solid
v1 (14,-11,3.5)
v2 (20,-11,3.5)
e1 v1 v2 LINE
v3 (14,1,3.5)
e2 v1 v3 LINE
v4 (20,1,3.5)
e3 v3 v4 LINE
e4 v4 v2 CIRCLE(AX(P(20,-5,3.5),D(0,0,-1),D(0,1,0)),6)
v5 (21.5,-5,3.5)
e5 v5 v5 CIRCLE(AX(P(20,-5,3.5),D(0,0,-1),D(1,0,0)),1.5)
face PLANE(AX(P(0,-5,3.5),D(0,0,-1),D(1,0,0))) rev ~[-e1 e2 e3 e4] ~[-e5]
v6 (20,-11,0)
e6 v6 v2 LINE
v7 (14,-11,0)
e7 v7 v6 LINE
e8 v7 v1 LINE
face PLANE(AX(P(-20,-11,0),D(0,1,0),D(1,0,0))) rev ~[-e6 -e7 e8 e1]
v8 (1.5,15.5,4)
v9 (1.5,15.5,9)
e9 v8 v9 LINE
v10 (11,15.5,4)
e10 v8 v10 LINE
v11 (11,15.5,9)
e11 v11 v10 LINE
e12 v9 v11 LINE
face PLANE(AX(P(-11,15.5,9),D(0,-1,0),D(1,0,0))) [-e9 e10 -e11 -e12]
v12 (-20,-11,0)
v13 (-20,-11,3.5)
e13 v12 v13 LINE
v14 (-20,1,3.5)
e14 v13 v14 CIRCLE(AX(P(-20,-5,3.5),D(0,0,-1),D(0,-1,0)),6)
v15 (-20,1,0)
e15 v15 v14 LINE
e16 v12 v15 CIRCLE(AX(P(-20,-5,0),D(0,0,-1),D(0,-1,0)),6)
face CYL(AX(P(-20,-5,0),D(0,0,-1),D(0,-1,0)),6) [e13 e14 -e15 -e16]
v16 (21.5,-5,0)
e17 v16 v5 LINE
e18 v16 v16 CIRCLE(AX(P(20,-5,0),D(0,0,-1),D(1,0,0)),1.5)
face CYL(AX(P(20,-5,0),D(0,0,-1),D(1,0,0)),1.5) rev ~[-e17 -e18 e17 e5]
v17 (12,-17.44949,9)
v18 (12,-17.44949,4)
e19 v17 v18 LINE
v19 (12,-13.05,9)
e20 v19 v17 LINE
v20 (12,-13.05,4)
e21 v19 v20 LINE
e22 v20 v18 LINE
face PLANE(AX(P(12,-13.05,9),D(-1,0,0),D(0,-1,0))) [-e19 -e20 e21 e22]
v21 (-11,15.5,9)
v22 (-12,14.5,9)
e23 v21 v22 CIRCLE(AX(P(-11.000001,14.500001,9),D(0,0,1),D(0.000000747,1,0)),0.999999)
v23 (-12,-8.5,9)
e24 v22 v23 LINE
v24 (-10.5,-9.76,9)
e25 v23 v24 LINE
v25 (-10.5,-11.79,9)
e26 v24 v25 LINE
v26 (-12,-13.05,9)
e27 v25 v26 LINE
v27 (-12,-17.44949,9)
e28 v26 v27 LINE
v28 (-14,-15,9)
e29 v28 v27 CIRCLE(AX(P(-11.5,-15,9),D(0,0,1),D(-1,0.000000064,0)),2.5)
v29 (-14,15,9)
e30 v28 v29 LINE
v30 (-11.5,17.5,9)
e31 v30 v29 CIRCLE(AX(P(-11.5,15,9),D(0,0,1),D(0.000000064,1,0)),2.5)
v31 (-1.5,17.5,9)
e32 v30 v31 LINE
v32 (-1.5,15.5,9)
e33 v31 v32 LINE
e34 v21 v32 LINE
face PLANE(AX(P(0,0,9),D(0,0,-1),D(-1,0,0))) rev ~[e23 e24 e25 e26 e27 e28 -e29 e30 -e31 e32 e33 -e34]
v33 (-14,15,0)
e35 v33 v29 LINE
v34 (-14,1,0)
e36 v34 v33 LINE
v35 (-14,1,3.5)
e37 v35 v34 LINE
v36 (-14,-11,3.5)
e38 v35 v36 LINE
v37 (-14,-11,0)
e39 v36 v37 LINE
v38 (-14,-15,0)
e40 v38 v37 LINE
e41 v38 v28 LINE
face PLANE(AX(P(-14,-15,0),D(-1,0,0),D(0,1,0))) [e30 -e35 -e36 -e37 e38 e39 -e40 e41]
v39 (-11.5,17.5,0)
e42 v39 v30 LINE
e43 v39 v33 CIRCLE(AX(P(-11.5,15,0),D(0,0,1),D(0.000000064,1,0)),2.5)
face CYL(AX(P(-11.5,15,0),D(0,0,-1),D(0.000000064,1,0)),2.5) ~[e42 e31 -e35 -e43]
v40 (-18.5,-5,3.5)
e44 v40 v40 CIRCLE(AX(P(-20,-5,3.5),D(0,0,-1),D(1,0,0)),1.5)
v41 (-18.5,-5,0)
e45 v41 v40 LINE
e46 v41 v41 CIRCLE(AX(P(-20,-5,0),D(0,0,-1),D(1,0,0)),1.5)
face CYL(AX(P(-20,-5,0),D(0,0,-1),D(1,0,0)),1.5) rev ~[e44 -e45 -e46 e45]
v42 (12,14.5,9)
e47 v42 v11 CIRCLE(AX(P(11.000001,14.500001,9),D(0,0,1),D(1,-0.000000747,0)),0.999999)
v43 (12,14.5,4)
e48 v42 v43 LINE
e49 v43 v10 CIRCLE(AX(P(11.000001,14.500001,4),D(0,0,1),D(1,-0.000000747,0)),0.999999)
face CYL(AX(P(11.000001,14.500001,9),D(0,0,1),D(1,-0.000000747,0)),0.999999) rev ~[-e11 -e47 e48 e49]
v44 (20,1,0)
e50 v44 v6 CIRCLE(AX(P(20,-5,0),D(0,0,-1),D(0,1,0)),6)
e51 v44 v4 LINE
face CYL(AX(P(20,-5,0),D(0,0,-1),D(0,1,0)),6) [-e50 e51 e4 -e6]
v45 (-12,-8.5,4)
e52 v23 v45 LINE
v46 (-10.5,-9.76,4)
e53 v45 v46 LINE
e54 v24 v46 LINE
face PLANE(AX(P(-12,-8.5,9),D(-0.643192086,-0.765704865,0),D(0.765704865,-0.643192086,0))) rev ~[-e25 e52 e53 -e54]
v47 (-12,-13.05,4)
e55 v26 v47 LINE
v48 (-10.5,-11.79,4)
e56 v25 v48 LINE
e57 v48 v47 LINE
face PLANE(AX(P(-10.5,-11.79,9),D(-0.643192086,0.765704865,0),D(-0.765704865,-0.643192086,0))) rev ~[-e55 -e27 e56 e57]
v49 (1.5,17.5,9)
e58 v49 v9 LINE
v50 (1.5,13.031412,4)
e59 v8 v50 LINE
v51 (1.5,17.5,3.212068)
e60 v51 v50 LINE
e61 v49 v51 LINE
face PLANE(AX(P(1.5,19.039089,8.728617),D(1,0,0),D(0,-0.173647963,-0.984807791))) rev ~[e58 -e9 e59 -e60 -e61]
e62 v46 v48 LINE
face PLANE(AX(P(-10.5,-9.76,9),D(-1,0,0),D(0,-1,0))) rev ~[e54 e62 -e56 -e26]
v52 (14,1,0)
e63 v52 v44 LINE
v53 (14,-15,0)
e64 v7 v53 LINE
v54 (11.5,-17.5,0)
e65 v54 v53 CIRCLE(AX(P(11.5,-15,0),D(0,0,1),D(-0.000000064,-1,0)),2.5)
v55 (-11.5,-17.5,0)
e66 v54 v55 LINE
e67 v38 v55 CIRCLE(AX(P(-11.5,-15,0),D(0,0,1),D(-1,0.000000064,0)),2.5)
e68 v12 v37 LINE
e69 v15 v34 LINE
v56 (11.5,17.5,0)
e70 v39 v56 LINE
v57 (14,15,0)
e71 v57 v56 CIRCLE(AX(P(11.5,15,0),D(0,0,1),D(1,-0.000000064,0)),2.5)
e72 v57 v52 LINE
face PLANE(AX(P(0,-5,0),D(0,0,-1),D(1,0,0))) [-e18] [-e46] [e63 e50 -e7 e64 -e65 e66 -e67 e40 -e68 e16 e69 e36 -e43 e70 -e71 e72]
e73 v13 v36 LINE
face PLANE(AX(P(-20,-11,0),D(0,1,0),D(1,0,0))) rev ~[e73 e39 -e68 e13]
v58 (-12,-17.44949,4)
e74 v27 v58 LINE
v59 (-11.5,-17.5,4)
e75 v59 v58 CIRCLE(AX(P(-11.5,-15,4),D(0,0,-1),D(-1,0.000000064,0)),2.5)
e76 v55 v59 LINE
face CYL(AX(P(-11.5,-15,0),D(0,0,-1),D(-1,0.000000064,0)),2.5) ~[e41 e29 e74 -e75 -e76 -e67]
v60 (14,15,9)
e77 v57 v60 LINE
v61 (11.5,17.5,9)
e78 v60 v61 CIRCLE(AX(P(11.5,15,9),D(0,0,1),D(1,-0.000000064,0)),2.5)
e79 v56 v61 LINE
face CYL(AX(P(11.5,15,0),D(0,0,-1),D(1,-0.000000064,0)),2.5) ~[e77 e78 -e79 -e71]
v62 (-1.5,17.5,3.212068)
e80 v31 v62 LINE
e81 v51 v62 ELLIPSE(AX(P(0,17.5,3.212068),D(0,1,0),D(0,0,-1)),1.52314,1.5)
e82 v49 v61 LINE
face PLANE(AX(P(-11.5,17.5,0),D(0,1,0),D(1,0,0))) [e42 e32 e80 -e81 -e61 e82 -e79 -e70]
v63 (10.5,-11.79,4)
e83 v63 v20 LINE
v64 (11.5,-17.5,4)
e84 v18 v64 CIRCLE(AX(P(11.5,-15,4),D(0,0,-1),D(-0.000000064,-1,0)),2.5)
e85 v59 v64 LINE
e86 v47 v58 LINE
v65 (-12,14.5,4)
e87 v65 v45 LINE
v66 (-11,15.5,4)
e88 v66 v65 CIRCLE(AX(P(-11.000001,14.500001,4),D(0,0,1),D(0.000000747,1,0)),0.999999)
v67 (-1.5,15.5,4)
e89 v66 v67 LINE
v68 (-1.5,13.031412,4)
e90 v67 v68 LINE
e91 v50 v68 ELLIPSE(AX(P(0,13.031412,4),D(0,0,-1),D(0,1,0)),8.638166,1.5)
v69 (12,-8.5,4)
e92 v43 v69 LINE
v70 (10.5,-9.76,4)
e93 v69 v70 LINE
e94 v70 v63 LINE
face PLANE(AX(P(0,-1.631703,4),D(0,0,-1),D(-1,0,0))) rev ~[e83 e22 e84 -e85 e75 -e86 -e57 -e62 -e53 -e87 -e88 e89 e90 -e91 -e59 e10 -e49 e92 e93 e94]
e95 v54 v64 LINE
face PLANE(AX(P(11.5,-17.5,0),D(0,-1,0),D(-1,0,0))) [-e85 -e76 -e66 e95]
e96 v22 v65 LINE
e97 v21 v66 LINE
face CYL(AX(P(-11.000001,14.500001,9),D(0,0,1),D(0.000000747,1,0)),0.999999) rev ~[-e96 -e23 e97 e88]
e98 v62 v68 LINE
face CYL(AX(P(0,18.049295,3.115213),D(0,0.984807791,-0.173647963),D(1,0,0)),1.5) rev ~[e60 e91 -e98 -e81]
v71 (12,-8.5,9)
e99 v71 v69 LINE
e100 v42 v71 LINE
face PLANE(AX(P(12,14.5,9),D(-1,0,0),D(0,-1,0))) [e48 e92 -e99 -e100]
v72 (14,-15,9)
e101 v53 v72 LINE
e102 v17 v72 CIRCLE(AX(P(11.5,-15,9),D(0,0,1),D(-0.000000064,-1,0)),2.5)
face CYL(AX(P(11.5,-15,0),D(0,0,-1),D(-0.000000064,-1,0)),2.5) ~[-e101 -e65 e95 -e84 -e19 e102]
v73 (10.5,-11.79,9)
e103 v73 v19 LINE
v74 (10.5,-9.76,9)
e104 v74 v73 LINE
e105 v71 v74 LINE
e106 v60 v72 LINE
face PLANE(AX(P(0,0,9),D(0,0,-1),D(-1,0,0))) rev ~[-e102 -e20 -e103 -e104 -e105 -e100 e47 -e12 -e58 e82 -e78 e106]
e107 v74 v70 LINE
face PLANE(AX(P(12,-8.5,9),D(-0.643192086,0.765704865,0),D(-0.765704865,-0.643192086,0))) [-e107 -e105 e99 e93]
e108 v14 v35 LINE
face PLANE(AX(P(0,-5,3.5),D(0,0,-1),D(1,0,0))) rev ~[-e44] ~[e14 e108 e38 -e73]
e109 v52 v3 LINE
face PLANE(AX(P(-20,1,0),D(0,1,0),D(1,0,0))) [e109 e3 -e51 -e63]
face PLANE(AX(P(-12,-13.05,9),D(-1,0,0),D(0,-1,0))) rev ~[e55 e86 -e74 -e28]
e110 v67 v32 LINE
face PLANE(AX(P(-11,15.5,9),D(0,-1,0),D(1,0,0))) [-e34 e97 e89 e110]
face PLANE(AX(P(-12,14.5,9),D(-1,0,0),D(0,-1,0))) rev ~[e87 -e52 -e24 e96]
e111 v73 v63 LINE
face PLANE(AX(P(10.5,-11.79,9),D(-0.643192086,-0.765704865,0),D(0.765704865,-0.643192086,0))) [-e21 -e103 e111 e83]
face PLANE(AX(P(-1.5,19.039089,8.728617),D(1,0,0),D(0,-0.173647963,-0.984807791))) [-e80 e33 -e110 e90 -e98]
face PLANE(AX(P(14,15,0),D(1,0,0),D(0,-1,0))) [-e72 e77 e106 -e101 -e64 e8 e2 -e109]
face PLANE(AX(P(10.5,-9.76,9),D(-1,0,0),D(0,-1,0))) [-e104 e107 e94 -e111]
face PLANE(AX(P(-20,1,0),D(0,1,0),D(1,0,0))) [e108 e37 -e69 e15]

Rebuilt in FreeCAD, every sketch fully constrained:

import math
import FreeCAD as App
import Part
import Sketcher
Q = App.Units.Quantity

doc = App.newDocument("Part")
body = doc.addObject("PartDesign::Body", "Body")

sketch1 = body.newObject("Sketcher::SketchObject", "Sketch")
sketch1.AttachmentSupport = (doc.getObject("XY_Plane"), [""])
sketch1.MapMode = "FlatFace"
sketch1.addGeometry(Part.LineSegment(App.Vector(11.5, 17.5, 0), App.Vector(-11.5, 17.5, 0)), False)
sketch1.addGeometry(Part.ArcOfCircle(Part.Circle(App.Vector(-11.5, 15, 0), App.Vector(0, 0, 1), 2.5), math.radians(89.999996), math.radians(180.000004)), False)
sketch1.addGeometry(Part.LineSegment(App.Vector(-14, 15, 0), App.Vector(-14, -15, 0)), False)
sketch1.addGeometry(Part.ArcOfCircle(Part.Circle(App.Vector(-11.5, -15, 0), App.Vector(0, 0, 1), 2.5), math.radians(179.999996), math.radians(270.000004)), False)
sketch1.addGeometry(Part.LineSegment(App.Vector(-11.5, -17.5, 0), App.Vector(11.5, -17.5, 0)), False)
sketch1.addGeometry(Part.ArcOfCircle(Part.Circle(App.Vector(11.5, -15, 0), App.Vector(0, 0, 1), 2.5), math.radians(-90.000004), math.radians(0.000004)), False)
sketch1.addGeometry(Part.LineSegment(App.Vector(14, -15, 0), App.Vector(14, 15, 0)), False)
sketch1.addGeometry(Part.ArcOfCircle(Part.Circle(App.Vector(11.5, 15, 0), App.Vector(0, 0, 1), 2.5), math.radians(-0.000004), math.radians(90.000004)), False)
sketch1.addConstraint(Sketcher.Constraint("Tangent", 0, 2, 1, 1))
sketch1.addConstraint(Sketcher.Constraint("Tangent", 1, 2, 2, 1))
sketch1.addConstraint(Sketcher.Constraint("Tangent", 2, 2, 3, 1))
sketch1.addConstraint(Sketcher.Constraint("Tangent", 3, 2, 4, 1))
sketch1.addConstraint(Sketcher.Constraint("Tangent", 4, 2, 5, 1))
sketch1.addConstraint(Sketcher.Constraint("Tangent", 5, 2, 6, 1))
sketch1.addConstraint(Sketcher.Constraint("Tangent", 6, 2, 7, 1))
sketch1.addConstraint(Sketcher.Constraint("Tangent", 7, 2, 0, 1))
sketch1.addConstraint(Sketcher.Constraint("Horizontal", 0))
sketch1.addConstraint(Sketcher.Constraint("Vertical", 2))
sketch1.addConstraint(Sketcher.Constraint("Horizontal", 4))
sketch1.addConstraint(Sketcher.Constraint("Vertical", 6))
sketch1.addConstraint(Sketcher.Constraint("Equal", 1, 3))
sketch1.addConstraint(Sketcher.Constraint("Equal", 3, 5))
sketch1.addConstraint(Sketcher.Constraint("Equal", 5, 7))
sketch1.addConstraint(Sketcher.Constraint("Symmetric", 1, 3, 5, 3, -1, 1))
sketch1.addConstraint(Sketcher.Constraint("Radius", 1, Q("2.5 mm")))
sketch1.addConstraint(Sketcher.Constraint("DistanceX", 0, 2, 0, 1, Q("23 mm")))
sketch1.addConstraint(Sketcher.Constraint("DistanceY", 2, 2, 2, 1, Q("30 mm")))
pad1 = body.newObject("PartDesign::Pad", "Pad")
pad1.Profile = sketch1
pad1.Length = 9

sketch2 = body.newObject("Sketcher::SketchObject", "Sketch001")
sketch2.AttachmentSupport = (doc.getObject("XY_Plane"), [""])
sketch2.MapMode = "FlatFace"
sketch2.AttachmentOffset = App.Placement(App.Vector(0, 0, 9), App.Rotation())
sketch2.addGeometry(Part.LineSegment(App.Vector(11, 15.5, 0), App.Vector(-11, 15.5, 0)), False)
sketch2.addGeometry(Part.ArcOfCircle(Part.Circle(App.Vector(-11.000001, 14.500001, 0), App.Vector(0, 0, 1), 0.999999), math.radians(89.999957), math.radians(180.000043)), False)
sketch2.addGeometry(Part.LineSegment(App.Vector(-12, 14.5, 0), App.Vector(-12, -8.5, 0)), False)
sketch2.addGeometry(Part.LineSegment(App.Vector(-12, -8.5, 0), App.Vector(-10.5, -9.76, 0)), False)
sketch2.addGeometry(Part.LineSegment(App.Vector(-10.5, -9.76, 0), App.Vector(-10.5, -11.79, 0)), False)
sketch2.addGeometry(Part.LineSegment(App.Vector(-10.5, -11.79, 0), App.Vector(-12, -13.05, 0)), False)
sketch2.addGeometry(Part.LineSegment(App.Vector(-12, -13.05, 0), App.Vector(-12, -18.05, 0)), False)
sketch2.addGeometry(Part.LineSegment(App.Vector(-12, -18.05, 0), App.Vector(12, -18.05, 0)), False)
sketch2.addGeometry(Part.LineSegment(App.Vector(12, -18.05, 0), App.Vector(12, -13.05, 0)), False)
sketch2.addGeometry(Part.LineSegment(App.Vector(12, -13.05, 0), App.Vector(10.5, -11.79, 0)), False)
sketch2.addGeometry(Part.LineSegment(App.Vector(10.5, -11.79, 0), App.Vector(10.5, -9.76, 0)), False)
sketch2.addGeometry(Part.LineSegment(App.Vector(10.5, -9.76, 0), App.Vector(12, -8.5, 0)), False)
sketch2.addGeometry(Part.LineSegment(App.Vector(12, -8.5, 0), App.Vector(12, 14.5, 0)), False)
sketch2.addGeometry(Part.ArcOfCircle(Part.Circle(App.Vector(11.000001, 14.500001, 0), App.Vector(0, 0, 1), 0.999999), math.radians(-0.000043), math.radians(90.000043)), False)
sketch2.addConstraint(Sketcher.Constraint("Tangent", 0, 2, 1, 1))
sketch2.addConstraint(Sketcher.Constraint("Tangent", 1, 2, 2, 1))
sketch2.addConstraint(Sketcher.Constraint("Coincident", 2, 2, 3, 1))
sketch2.addConstraint(Sketcher.Constraint("Coincident", 3, 2, 4, 1))
sketch2.addConstraint(Sketcher.Constraint("Coincident", 4, 2, 5, 1))
sketch2.addConstraint(Sketcher.Constraint("Coincident", 5, 2, 6, 1))
sketch2.addConstraint(Sketcher.Constraint("Coincident", 6, 2, 7, 1))
sketch2.addConstraint(Sketcher.Constraint("Coincident", 7, 2, 8, 1))
sketch2.addConstraint(Sketcher.Constraint("Coincident", 8, 2, 9, 1))
sketch2.addConstraint(Sketcher.Constraint("Coincident", 9, 2, 10, 1))
sketch2.addConstraint(Sketcher.Constraint("Coincident", 10, 2, 11, 1))
sketch2.addConstraint(Sketcher.Constraint("Coincident", 11, 2, 12, 1))
sketch2.addConstraint(Sketcher.Constraint("Tangent", 12, 2, 13, 1))
sketch2.addConstraint(Sketcher.Constraint("Tangent", 13, 2, 0, 1))
sketch2.addConstraint(Sketcher.Constraint("Horizontal", 0))
sketch2.addConstraint(Sketcher.Constraint("Vertical", 2))
sketch2.addConstraint(Sketcher.Constraint("Vertical", 4))
sketch2.addConstraint(Sketcher.Constraint("Vertical", 6))
sketch2.addConstraint(Sketcher.Constraint("Horizontal", 7))
sketch2.addConstraint(Sketcher.Constraint("Vertical", 8))
sketch2.addConstraint(Sketcher.Constraint("Vertical", 10))
sketch2.addConstraint(Sketcher.Constraint("Vertical", 12))
sketch2.addConstraint(Sketcher.Constraint("Equal", 1, 13))
sketch2.addConstraint(Sketcher.Constraint("Symmetric", 5, 2, 8, 2, -2))
sketch2.addConstraint(Sketcher.Constraint("Symmetric", 4, 2, 9, 2, -2))
sketch2.addConstraint(Sketcher.Constraint("Symmetric", 2, 2, 11, 2, -2))
sketch2.addConstraint(Sketcher.Constraint("Parallel", 3, 9))
sketch2.addConstraint(Sketcher.Constraint("Parallel", 5, 11))
sketch2.addConstraint(Sketcher.Constraint("Vertical", 2, 2, 5, 2))
sketch2.addConstraint(Sketcher.Constraint("Radius", 1, Q("0.999999 mm")))
sketch2.addConstraint(Sketcher.Constraint("DistanceX", 0, 2, 0, 1, Q("22 mm")))
sketch2.addConstraint(Sketcher.Constraint("DistanceY", 2, 2, 2, 1, Q("23 mm")))
sketch2.addConstraint(Sketcher.Constraint("DistanceY", 6, 2, 6, 1, Q("5 mm")))
sketch2.addConstraint(Sketcher.Constraint("DistanceX", 4, 2, 9, 2, Q("21 mm")))
sketch2.addConstraint(Sketcher.Constraint("DistanceY", 4, 2, 4, 1, Q("2.03 mm")))
sketch2.addConstraint(Sketcher.Constraint("DistanceY", -1, 1, 1, 3, Q("14.500001 mm")))
sketch2.addConstraint(Sketcher.Constraint("DistanceY", 3, 2, -1, 1, Q("9.76 mm")))
pocket1 = body.newObject("PartDesign::Pocket", "Pocket")
pocket1.Profile = sketch2
pocket1.Length = 5

sketch3 = body.newObject("Sketcher::SketchObject", "Sketch002")
sketch3.Placement = App.Placement(App.Vector(0, 17.5, 0), App.Rotation(App.Vector(-1, 0, 0), App.Vector(0, 0.173647963, 0.984807791), App.Vector(0, 0.984807791, -0.173647963), "ZXY"))
sketch3.addGeometry(Part.ArcOfCircle(Part.Circle(App.Vector(0, 3.16327, 0), App.Vector(0, 0, 1), 1.5), math.radians(180), math.radians(360)), False)
sketch3.addGeometry(Part.LineSegment(App.Vector(1.5, 3.16327, 0), App.Vector(1.5, 8.86327, 0)), False)
sketch3.addGeometry(Part.LineSegment(App.Vector(1.5, 8.86327, 0), App.Vector(-1.5, 8.86327, 0)), False)
sketch3.addGeometry(Part.LineSegment(App.Vector(-1.5, 8.86327, 0), App.Vector(-1.5, 3.16327, 0)), False)
sketch3.addConstraint(Sketcher.Constraint("Tangent", 0, 2, 1, 1))
sketch3.addConstraint(Sketcher.Constraint("Coincident", 1, 2, 2, 1))
sketch3.addConstraint(Sketcher.Constraint("Coincident", 2, 2, 3, 1))
sketch3.addConstraint(Sketcher.Constraint("Tangent", 3, 2, 0, 1))
sketch3.addConstraint(Sketcher.Constraint("Vertical", 1))
sketch3.addConstraint(Sketcher.Constraint("Horizontal", 2))
sketch3.addConstraint(Sketcher.Constraint("Vertical", 3))
sketch3.addConstraint(Sketcher.Constraint("PointOnObject", 0, 3, -2))
sketch3.addConstraint(Sketcher.Constraint("Radius", 0, Q("1.5 mm")))
sketch3.addConstraint(Sketcher.Constraint("DistanceY", 1, 1, 1, 2, Q("5.7 mm")))
sketch3.addConstraint(Sketcher.Constraint("DistanceY", -1, 1, 0, 3, Q("3.16327 mm")))
pocket2 = body.newObject("PartDesign::Pocket", "Pocket001")
pocket2.Profile = sketch3
pocket2.Length = 20

sketch4 = body.newObject("Sketcher::SketchObject", "Sketch003")
sketch4.AttachmentSupport = (doc.getObject("XY_Plane"), [""])
sketch4.MapMode = "FlatFace"
sketch4.addGeometry(Part.ArcOfCircle(Part.Circle(App.Vector(-20, -5, 0), App.Vector(0, 0, 1), 6), math.radians(90), math.radians(270)), False)
sketch4.addGeometry(Part.LineSegment(App.Vector(-20, 1, 0), App.Vector(20, 1, 0)), False)
sketch4.addGeometry(Part.ArcOfCircle(Part.Circle(App.Vector(20, -5, 0), App.Vector(0, 0, 1), 6), math.radians(-90), math.radians(90)), False)
sketch4.addGeometry(Part.LineSegment(App.Vector(20, -11, 0), App.Vector(-20, -11, 0)), False)
sketch4.addGeometry(Part.Circle(App.Vector(-20, -5, 0), App.Vector(0, 0, 1), 1.5), False)
sketch4.addGeometry(Part.Circle(App.Vector(20, -5, 0), App.Vector(0, 0, 1), 1.5), False)
sketch4.addConstraint(Sketcher.Constraint("Tangent", 0, 1, 1, 1))
sketch4.addConstraint(Sketcher.Constraint("Tangent", 1, 2, 2, 2))
sketch4.addConstraint(Sketcher.Constraint("Tangent", 2, 1, 3, 1))
sketch4.addConstraint(Sketcher.Constraint("Tangent", 3, 2, 0, 2))
sketch4.addConstraint(Sketcher.Constraint("Horizontal", 1))
sketch4.addConstraint(Sketcher.Constraint("Horizontal", 3))
sketch4.addConstraint(Sketcher.Constraint("Coincident", 4, 3, 0, 3))
sketch4.addConstraint(Sketcher.Constraint("Coincident", 5, 3, 2, 3))
sketch4.addConstraint(Sketcher.Constraint("Equal", 4, 5))
sketch4.addConstraint(Sketcher.Constraint("Diameter", 4, Q("3 mm")))
sketch4.addConstraint(Sketcher.Constraint("Radius", 0, Q("6 mm")))
sketch4.addConstraint(Sketcher.Constraint("DistanceX", 1, 1, 1, 2, Q("40 mm")))
sketch4.addConstraint(Sketcher.Constraint("DistanceX", 0, 3, -1, 1, Q("20 mm")))
sketch4.addConstraint(Sketcher.Constraint("DistanceY", 0, 3, -1, 1, Q("5 mm")))
pad2 = body.newObject("PartDesign::Pad", "Pad001")
pad2.Profile = sketch4
pad2.Length = 3.5

doc.recompute()
